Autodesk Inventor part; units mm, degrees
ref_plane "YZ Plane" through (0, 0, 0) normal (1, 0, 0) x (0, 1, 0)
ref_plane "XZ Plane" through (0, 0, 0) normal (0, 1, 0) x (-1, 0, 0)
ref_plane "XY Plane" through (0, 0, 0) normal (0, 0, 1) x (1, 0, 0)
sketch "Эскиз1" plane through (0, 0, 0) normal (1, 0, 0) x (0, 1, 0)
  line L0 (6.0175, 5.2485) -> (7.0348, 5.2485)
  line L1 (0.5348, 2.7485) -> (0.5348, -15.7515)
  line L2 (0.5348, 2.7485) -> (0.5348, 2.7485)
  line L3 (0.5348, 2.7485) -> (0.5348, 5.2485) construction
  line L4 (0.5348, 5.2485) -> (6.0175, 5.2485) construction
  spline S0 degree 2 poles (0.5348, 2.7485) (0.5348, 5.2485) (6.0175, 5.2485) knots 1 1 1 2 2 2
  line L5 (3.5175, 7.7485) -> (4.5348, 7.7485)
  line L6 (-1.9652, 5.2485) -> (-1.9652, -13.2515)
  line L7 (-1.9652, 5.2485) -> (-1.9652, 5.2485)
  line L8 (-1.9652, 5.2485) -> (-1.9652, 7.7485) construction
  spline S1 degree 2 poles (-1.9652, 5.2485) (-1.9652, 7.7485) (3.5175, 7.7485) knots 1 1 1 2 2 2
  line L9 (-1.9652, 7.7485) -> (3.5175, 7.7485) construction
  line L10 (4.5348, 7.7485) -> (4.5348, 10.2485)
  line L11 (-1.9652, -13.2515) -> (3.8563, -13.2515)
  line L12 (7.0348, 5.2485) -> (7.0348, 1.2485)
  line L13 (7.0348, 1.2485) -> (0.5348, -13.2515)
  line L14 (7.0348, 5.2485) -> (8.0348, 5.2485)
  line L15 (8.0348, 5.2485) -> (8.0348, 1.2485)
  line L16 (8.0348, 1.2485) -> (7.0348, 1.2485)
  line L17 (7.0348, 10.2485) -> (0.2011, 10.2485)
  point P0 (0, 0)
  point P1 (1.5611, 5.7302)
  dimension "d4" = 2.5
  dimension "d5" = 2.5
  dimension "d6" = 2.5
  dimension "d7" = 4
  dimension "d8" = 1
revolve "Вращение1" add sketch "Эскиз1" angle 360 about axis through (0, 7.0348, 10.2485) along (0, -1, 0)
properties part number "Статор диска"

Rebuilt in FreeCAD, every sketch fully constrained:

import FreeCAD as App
import Part
import Sketcher
from FreeCAD import Vector
Q = App.Units.Quantity

doc = App.newDocument("Part")
body = doc.addObject("PartDesign::Body", "Body")

# Sketch on YZ plane
sketch1 = body.newObject("Sketcher::SketchObject", "Sketch")
sketch1.AttachmentSupport = (doc.getObject("YZ_Plane"), [""])
sketch1.MapMode = "FlatFace"
sketch1.addGeometry([
    Part.BSplineCurve([Vector(0.5348, 2.7485, 0), Vector(0.5348, 5.2485, 0), Vector(6.0175, 5.2485, 0)], [3, 3], [1, 2], False, 2, [1, 1, 1], False),  # 0
    Part.LineSegment(Vector(0.5348, 2.7485, 0), Vector(0.5348, -13.2515, 0)),  # 1
    Part.LineSegment(Vector(0.5348, -13.2515, 0), Vector(7.0348, 1.2485, 0)),  # 2
    Part.LineSegment(Vector(7.0348, 1.2485, 0), Vector(8.0348, 1.2485, 0)),  # 3
    Part.LineSegment(Vector(8.0348, 1.2485, 0), Vector(8.0348, 5.2485, 0)),  # 4
    Part.LineSegment(Vector(8.0348, 5.2485, 0), Vector(6.0175, 5.2485, 0)),  # 5
], False)
sketch1.addGeometry(Part.LineSegment(Vector(8.0348, 10.2485, 0), Vector(0.5348, 10.2485, 0)), True)  # axis
sketch1.addConstraint([
    Sketcher.Constraint("Block", 0),
    Sketcher.Constraint("Coincident", 0, 1, 1, 1),
    Sketcher.Constraint("Coincident", 1, 2, 2, 1),
    Sketcher.Constraint("Coincident", 2, 2, 3, 1),
    Sketcher.Constraint("Coincident", 3, 2, 4, 1),
    Sketcher.Constraint("Coincident", 4, 2, 5, 1),
    Sketcher.Constraint("Coincident", 5, 2, 0, 2),
    Sketcher.Constraint("Vertical", 1),
    Sketcher.Constraint("Horizontal", 3),
    Sketcher.Constraint("Vertical", 4),
    Sketcher.Constraint("Horizontal", 5),
    Sketcher.Constraint("Horizontal", 6),
    Sketcher.Constraint("Vertical", 4, 2, 6, 1),
    Sketcher.Constraint("Vertical", 1, 2, 6, 2),
    Sketcher.Constraint("DistanceX", 3, 1, 3, 2, Q("1 mm")),
    Sketcher.Constraint("DistanceY", 4, 1, 4, 2, Q("4 mm")),
    Sketcher.Constraint("DistanceY", 1, 2, 1, 1, Q("16 mm")),
    Sketcher.Constraint("DistanceX", 6, 2, 6, 1, Q("7.5 mm")),
    Sketcher.Constraint("DistanceY", 4, 2, 6, 1, Q("5 mm")),
])
revolution = body.newObject("PartDesign::Revolution", "Revolution")
revolution.Profile = sketch1
revolution.ReferenceAxis = (sketch1, ["Axis0"])
revolution.Angle = 360

doc.recompute()
